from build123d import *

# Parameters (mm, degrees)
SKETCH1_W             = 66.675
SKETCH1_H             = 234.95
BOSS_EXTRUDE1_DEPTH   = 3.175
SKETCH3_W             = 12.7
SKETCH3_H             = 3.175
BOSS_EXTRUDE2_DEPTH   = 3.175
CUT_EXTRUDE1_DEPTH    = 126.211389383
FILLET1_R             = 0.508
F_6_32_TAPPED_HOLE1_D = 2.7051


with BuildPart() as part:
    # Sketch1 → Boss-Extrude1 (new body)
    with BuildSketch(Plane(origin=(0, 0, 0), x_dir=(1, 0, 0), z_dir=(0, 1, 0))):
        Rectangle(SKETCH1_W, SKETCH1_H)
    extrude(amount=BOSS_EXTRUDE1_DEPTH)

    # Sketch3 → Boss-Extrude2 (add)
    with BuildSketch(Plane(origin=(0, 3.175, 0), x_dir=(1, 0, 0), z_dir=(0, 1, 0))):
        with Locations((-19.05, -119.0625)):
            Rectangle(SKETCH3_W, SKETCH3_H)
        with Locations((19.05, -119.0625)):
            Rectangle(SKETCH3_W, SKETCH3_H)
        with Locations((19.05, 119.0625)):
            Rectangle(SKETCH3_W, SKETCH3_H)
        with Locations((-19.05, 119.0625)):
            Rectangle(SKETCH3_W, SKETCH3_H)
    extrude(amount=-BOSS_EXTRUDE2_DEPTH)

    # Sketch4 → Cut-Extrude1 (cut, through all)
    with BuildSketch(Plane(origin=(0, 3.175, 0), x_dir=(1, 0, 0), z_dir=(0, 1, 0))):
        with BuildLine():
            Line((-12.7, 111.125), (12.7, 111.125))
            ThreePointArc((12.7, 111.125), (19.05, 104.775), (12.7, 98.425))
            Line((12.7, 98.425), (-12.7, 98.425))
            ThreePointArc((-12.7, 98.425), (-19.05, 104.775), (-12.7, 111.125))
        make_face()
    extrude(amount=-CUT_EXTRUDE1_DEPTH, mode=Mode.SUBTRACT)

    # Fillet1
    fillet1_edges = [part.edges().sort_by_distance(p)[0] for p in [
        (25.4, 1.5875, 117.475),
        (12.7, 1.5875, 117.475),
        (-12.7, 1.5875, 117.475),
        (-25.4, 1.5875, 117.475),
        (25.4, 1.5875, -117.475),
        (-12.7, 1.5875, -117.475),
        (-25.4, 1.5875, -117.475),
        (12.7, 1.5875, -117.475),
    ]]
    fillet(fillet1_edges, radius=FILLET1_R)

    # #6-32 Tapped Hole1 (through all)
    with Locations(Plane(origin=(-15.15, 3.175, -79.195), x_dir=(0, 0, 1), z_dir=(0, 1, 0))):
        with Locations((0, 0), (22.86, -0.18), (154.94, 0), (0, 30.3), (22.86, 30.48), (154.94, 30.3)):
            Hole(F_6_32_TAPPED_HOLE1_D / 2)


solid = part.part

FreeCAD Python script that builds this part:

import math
import FreeCAD as App
import Part
import Sketcher
from FreeCAD import Vector
Q = App.Units.Quantity


def edges_at(feature, points):
    """Names of the edges that pass closest to the given points."""
    edges = feature.Shape.Edges
    near = lambda p: min(range(len(edges)), key=lambda i: edges[i].distToShape(Part.Vertex(*p))[0])
    return sorted({f"Edge{near(p) + 1}" for p in points})


def add_polygon(sketch, points):
    """Adds a closed chain of lines whose ends are joined by coincident constraints."""
    first, n = sketch.GeometryCount, len(points)
    for a, b in zip(points, points[1:] + points[:1]):
        sketch.addGeometry(Part.LineSegment(App.Vector(*a, 0), App.Vector(*b, 0)), False)
    for i in range(n):
        sketch.addConstraint(Sketcher.Constraint("Coincident", first + i, 2, first + (i + 1) % n, 1))

doc = App.newDocument("Part")
params = doc.addObject("Spreadsheet::Sheet", "Params")
for row, (alias, value) in enumerate([
    ("sketch1_height", "9.25 in"),
    ("sketch1_width", "2.625 in"),
    ("pad1_length", "0.125 in"),
    ("sketch2_width", "0.5 in"),
    ("sketch2_height", "0.125 in"),
    ("pad2_length", "0.125 in"),
    ("sketch3_width", "1 in"),
    ("sketch3_radius", "0.25 in"),
    ("fillet_radius", "0.02 in"),
    ("hole_diameter", "0.1065 in"),
], start=1):
    params.set(f"A{row}", alias)
    params.set(f"B{row}", "=" + value)
    params.setAlias(f"B{row}", alias)

body = doc.addObject("PartDesign::Body", "Body")

# Sketch on XZ plane
sketch1 = doc.addObject("Sketcher::SketchObject", "Sketch")
body.addObject(sketch1)
sketch1.AttachmentSupport = (doc.XZ_Plane, [""])
sketch1.MapMode = "FlatFace"
add_polygon(sketch1, [(-33, -117), (-33, 117), (33, 117), (33, -117)])  # lines 0-3
sketch1.addConstraint(Sketcher.Constraint("Vertical", 0))
sketch1.addConstraint(Sketcher.Constraint("Horizontal", 1))
sketch1.addConstraint(Sketcher.Constraint("Vertical", 2))
sketch1.addConstraint(Sketcher.Constraint("Horizontal", 3))
sketch1.addConstraint(Sketcher.Constraint("Symmetric", 0, 2, 2, 2, -1, 1))
sketch1.addConstraint(Sketcher.Constraint("DistanceY", 0, 1, 0, 2, Q("9.25 in")))
sketch1.addConstraint(Sketcher.Constraint("DistanceX", 1, 1, 1, 2, Q("2.625 in")))
sketch1.setExpression("Constraints[9]", "Params.sketch1_height")
sketch1.setExpression("Constraints[10]", "Params.sketch1_width")
pad1 = doc.addObject("PartDesign::Pad", "Pad")
body.addObject(pad1)
pad1.Profile = sketch1
pad1.setExpression("Length", "Params.pad1_length")
pad1.Reversed = True

# Sketch on XZ plane
sketch2 = doc.addObject("Sketcher::SketchObject", "Sketch001")
body.addObject(sketch2)
sketch2.AttachmentSupport = (doc.XZ_Plane, [""])
sketch2.MapMode = "FlatFace"
sketch2.AttachmentOffset = App.Placement(Vector(0, 0, -0.125 * 25.4), App.Rotation())
add_polygon(sketch2, [(-25.4, 117.5), (-25.4, 120.7), (-12.7, 120.7), (-12.7, 117.5)])  # lines 0-3
add_polygon(sketch2, [(12.7, 117.5), (12.7, 120.7), (25.4, 120.7), (25.4, 117.5)])  # lines 4-7
add_polygon(sketch2, [(12.7, -120.7), (12.7, -117.5), (25.4, -117.5), (25.4, -120.7)])  # lines 8-11
add_polygon(sketch2, [(-25.4, -120.7), (-25.4, -117.5), (-12.7, -117.5), (-12.7, -120.7)])  # lines 12-15
sketch2.addConstraint(Sketcher.Constraint("Vertical", 0))
sketch2.addConstraint(Sketcher.Constraint("Horizontal", 1))
sketch2.addConstraint(Sketcher.Constraint("Vertical", 2))
sketch2.addConstraint(Sketcher.Constraint("Horizontal", 3))
sketch2.addConstraint(Sketcher.Constraint("Vertical", 4))
sketch2.addConstraint(Sketcher.Constraint("Horizontal", 5))
sketch2.addConstraint(Sketcher.Constraint("Vertical", 6))
sketch2.addConstraint(Sketcher.Constraint("Horizontal", 7))
sketch2.addConstraint(Sketcher.Constraint("Vertical", 8))
sketch2.addConstraint(Sketcher.Constraint("Horizontal", 9))
sketch2.addConstraint(Sketcher.Constraint("Vertical", 10))
sketch2.addConstraint(Sketcher.Constraint("Horizontal", 11))
sketch2.addConstraint(Sketcher.Constraint("Vertical", 12))
sketch2.addConstraint(Sketcher.Constraint("Horizontal", 13))
sketch2.addConstraint(Sketcher.Constraint("Vertical", 14))
sketch2.addConstraint(Sketcher.Constraint("Horizontal", 15))
sketch2.addConstraint(Sketcher.Constraint("Symmetric", 2, 2, 8, 2, -1, 1))
sketch2.addConstraint(Sketcher.Constraint("Symmetric", 0, 2, 10, 2, -1, 1))
sketch2.addConstraint(Sketcher.Constraint("Symmetric", 6, 2, 12, 2, -1, 1))
sketch2.addConstraint(Sketcher.Constraint("Symmetric", 4, 2, 14, 2, -1, 1))
sketch2.addConstraint(Sketcher.Constraint("Symmetric", 1, 2, 4, 2, -2))
sketch2.addConstraint(Sketcher.Constraint("Symmetric", 3, 2, 6, 2, -2))
sketch2.addConstraint(Sketcher.Constraint("DistanceX", 1, 1, 1, 2, Q("0.5 in")))
sketch2.addConstraint(Sketcher.Constraint("DistanceX", 0, 2, -1, 1, Q("1 in")))
sketch2.addConstraint(Sketcher.Constraint("DistanceY", 0, 1, 0, 2, Q("0.125 in")))
sketch2.addConstraint(Sketcher.Constraint("DistanceY", -1, 1, 0, 2, Q("4.75 in")))
sketch2.setExpression("Constraints[38]", "Params.sketch2_width")
sketch2.setExpression("Constraints[40]", "Params.sketch2_height")
pad2 = doc.addObject("PartDesign::Pad", "Pad001")
body.addObject(pad2)
pad2.Profile = sketch2
pad2.setExpression("Length", "Params.pad2_length")

# Sketch on XZ plane
sketch3 = doc.addObject("Sketcher::SketchObject", "Sketch002")
body.addObject(sketch3)
sketch3.AttachmentSupport = (doc.XZ_Plane, [""])
sketch3.MapMode = "FlatFace"
sketch3.AttachmentOffset = App.Placement(Vector(0, 0, -0.125 * 25.4), App.Rotation())
sketch3.addGeometry(Part.LineSegment(Vector(13, -111, 0), Vector(-13, -111, 0)), False)
sketch3.addGeometry(Part.ArcOfCircle(Part.Circle(Vector(-13, -105, 0), Vector(0, 0, 1), 6), math.radians(90), math.radians(270)), False)
sketch3.addGeometry(Part.LineSegment(Vector(-13, -98, 0), Vector(13, -98, 0)), False)
sketch3.addGeometry(Part.ArcOfCircle(Part.Circle(Vector(13, -105, 0), Vector(0, 0, 1), 6), math.radians(-90), math.radians(90)), False)
sketch3.addConstraint(Sketcher.Constraint("Tangent", 0, 2, 1, 2))
sketch3.addConstraint(Sketcher.Constraint("Tangent", 1, 1, 2, 1))
sketch3.addConstraint(Sketcher.Constraint("Tangent", 2, 2, 3, 2))
sketch3.addConstraint(Sketcher.Constraint("Tangent", 3, 1, 0, 1))
sketch3.addConstraint(Sketcher.Constraint("Horizontal", 0))
sketch3.addConstraint(Sketcher.Constraint("Horizontal", 2))
sketch3.addConstraint(Sketcher.Constraint("DistanceX", 0, 2, 0, 1, Q("1 in")))
sketch3.addConstraint(Sketcher.Constraint("Radius", 1, Q("0.25 in")))
sketch3.addConstraint(Sketcher.Constraint("DistanceX", 1, 3, -1, 1, Q("0.5 in")))
sketch3.addConstraint(Sketcher.Constraint("DistanceY", 1, 3, -1, 1, Q("4.125 in")))
sketch3.setExpression("Constraints[6]", "Params.sketch3_width")
sketch3.setExpression("Constraints[7]", "Params.sketch3_radius")
pocket1 = doc.addObject("PartDesign::Pocket", "Pocket")
body.addObject(pocket1)
pocket1.Profile = sketch3
pocket1.Type = "ThroughAll"
pocket1.Reversed = True
doc.recompute()

fillet = doc.addObject("PartDesign::Fillet", "Fillet")
body.addObject(fillet)
fillet.Base = (pocket1, edges_at(pocket1, [
    (25.4, 1.587, 117.475),
    (12.7, 1.587, 117.475),
    (-12.7, 1.587, 117.475),
    (-25.4, 1.587, 117.475),
    (25.4, 1.587, -117.475),
    (-12.7, 1.587, -117.475),
    (-25.4, 1.587, -117.475),
    (12.7, 1.587, -117.475),
]))
fillet.setExpression("Radius", "Params.fillet_radius")

# Sketch on XZ plane
sketch4 = doc.addObject("Sketcher::SketchObject", "Sketch003")
body.addObject(sketch4)
sketch4.AttachmentSupport = (doc.XZ_Plane, [""])
sketch4.MapMode = "FlatFace"
sketch4.AttachmentOffset = App.Placement(Vector(0, 0, -0.125 * 25.4), App.Rotation())
sketch4.addGeometry(Part.Circle(Vector(-15.2, -79.2, 0), Vector(0, 0, 1), 1.4), False)
sketch4.addGeometry(Part.Circle(Vector(-15.3, -56.3, 0), Vector(0, 0, 1), 1.4), False)
sketch4.addGeometry(Part.Circle(Vector(-15.2, 75.7, 0), Vector(0, 0, 1), 1.4), False)
sketch4.addGeometry(Part.Circle(Vector(15.2, -79.2, 0), Vector(0, 0, 1), 1.4), False)
sketch4.addGeometry(Part.Circle(Vector(15.3, -56.3, 0), Vector(0, 0, 1), 1.4), False)
sketch4.addGeometry(Part.Circle(Vector(15.2, 75.7, 0), Vector(0, 0, 1), 1.4), False)
sketch4.addConstraint(Sketcher.Constraint("Equal", 0, 1))
sketch4.addConstraint(Sketcher.Constraint("Equal", 1, 2))
sketch4.addConstraint(Sketcher.Constraint("Equal", 2, 3))
sketch4.addConstraint(Sketcher.Constraint("Equal", 3, 4))
sketch4.addConstraint(Sketcher.Constraint("Equal", 4, 5))
sketch4.addConstraint(Sketcher.Constraint("Symmetric", 0, 3, 3, 3, -2))
sketch4.addConstraint(Sketcher.Constraint("Symmetric", 1, 3, 4, 3, -2))
sketch4.addConstraint(Sketcher.Constraint("Symmetric", 2, 3, 5, 3, -2))
sketch4.addConstraint(Sketcher.Constraint("Vertical", 0, 3, 2, 3))
sketch4.addConstraint(Sketcher.Constraint("Diameter", 0, Q("0.1065 in")))
sketch4.addConstraint(Sketcher.Constraint("DistanceY", 0, 3, 1, 3, Q("0.9 in")))
sketch4.addConstraint(Sketcher.Constraint("DistanceY", 1, 3, 2, 3, Q("5.2 in")))
sketch4.addConstraint(Sketcher.Constraint("DistanceX", 1, 3, 3, 3, Q("1.2 in")))
sketch4.addConstraint(Sketcher.Constraint("DistanceX", 0, 3, -1, 1, Q("15.15 mm")))
sketch4.addConstraint(Sketcher.Constraint("DistanceY", 0, 3, -1, 1, Q("79.195 mm")))
doc.recompute()
hole = doc.addObject("PartDesign::Hole", "Hole")
body.addObject(hole)
hole.Profile = sketch4
hole.ThreadType = "None"
hole.setExpression("Diameter", "Params.hole_diameter")
hole.DepthType = "ThroughAll"
hole.Reversed = True

doc.recompute()
